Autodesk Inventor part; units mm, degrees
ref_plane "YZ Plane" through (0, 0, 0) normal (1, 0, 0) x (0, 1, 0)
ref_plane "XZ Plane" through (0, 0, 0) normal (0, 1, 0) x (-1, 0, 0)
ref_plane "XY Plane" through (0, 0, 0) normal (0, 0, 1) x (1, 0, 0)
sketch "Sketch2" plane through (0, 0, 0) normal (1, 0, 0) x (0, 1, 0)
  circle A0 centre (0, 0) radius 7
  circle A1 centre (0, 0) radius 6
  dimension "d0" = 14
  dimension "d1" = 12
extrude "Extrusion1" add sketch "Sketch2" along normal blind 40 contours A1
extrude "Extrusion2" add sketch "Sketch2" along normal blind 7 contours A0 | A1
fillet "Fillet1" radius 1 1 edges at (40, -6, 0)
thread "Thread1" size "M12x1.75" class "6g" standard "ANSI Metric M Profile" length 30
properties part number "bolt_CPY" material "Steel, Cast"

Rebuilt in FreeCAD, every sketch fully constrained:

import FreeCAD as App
import Part
import Sketcher
Q = App.Units.Quantity


def edges_at(feature, points):
    """Names of the edges that pass closest to the given points."""
    edges = feature.Shape.Edges
    near = lambda p: min(range(len(edges)), key=lambda i: edges[i].distToShape(Part.Vertex(*p))[0])
    return sorted({f"Edge{near(p) + 1}" for p in points})

doc = App.newDocument("Part")
params = doc.addObject("Spreadsheet::Sheet", "Params")
for row, (alias, value) in enumerate([
    ("sketch1_diameter", "12 mm"),
    ("pad1_length", "40 mm"),
    ("sketch2_diameter", "14 mm"),
    ("pad2_length", "7 mm"),
    ("fillet_radius", "1 mm"),
], start=1):
    params.set(f"A{row}", alias)
    params.set(f"B{row}", "=" + value)
    params.setAlias(f"B{row}", alias)

body = doc.addObject("PartDesign::Body", "Body")

# Sketch on YZ plane
sketch1 = body.newObject("Sketcher::SketchObject", "Sketch")
sketch1.AttachmentSupport = (doc.getObject("YZ_Plane"), [""])
sketch1.MapMode = "FlatFace"
sketch1.addGeometry(Part.Circle(App.Vector(0, 0, 0), App.Vector(0, 0, 1), 6), False)
sketch1.addConstraint(Sketcher.Constraint("Coincident", 0, 3, -1, 1))
sketch1.addConstraint(Sketcher.Constraint("Diameter", 0, Q("12 mm")))
sketch1.setExpression("Constraints[1]", "Params.sketch1_diameter")
pad1 = body.newObject("PartDesign::Pad", "Pad")
pad1.Profile = sketch1
pad1.setExpression("Length", "Params.pad1_length")

# Sketch on YZ plane
sketch2 = body.newObject("Sketcher::SketchObject", "Sketch001")
sketch2.AttachmentSupport = (doc.getObject("YZ_Plane"), [""])
sketch2.MapMode = "FlatFace"
sketch2.addGeometry(Part.Circle(App.Vector(0, 0, 0), App.Vector(0, 0, 1), 7), False)
sketch2.addConstraint(Sketcher.Constraint("Coincident", 0, 3, -1, 1))
sketch2.addConstraint(Sketcher.Constraint("Diameter", 0, Q("14 mm")))
sketch2.setExpression("Constraints[1]", "Params.sketch2_diameter")
pad2 = body.newObject("PartDesign::Pad", "Pad001")
pad2.Profile = sketch2
pad2.setExpression("Length", "Params.pad2_length")
doc.recompute()

fillet = body.newObject("PartDesign::Fillet", "Fillet")
fillet.Base = (pad2, edges_at(pad2, [(40, -6, 0)]))
fillet.setExpression("Radius", "Params.fillet_radius")

doc.recompute()
